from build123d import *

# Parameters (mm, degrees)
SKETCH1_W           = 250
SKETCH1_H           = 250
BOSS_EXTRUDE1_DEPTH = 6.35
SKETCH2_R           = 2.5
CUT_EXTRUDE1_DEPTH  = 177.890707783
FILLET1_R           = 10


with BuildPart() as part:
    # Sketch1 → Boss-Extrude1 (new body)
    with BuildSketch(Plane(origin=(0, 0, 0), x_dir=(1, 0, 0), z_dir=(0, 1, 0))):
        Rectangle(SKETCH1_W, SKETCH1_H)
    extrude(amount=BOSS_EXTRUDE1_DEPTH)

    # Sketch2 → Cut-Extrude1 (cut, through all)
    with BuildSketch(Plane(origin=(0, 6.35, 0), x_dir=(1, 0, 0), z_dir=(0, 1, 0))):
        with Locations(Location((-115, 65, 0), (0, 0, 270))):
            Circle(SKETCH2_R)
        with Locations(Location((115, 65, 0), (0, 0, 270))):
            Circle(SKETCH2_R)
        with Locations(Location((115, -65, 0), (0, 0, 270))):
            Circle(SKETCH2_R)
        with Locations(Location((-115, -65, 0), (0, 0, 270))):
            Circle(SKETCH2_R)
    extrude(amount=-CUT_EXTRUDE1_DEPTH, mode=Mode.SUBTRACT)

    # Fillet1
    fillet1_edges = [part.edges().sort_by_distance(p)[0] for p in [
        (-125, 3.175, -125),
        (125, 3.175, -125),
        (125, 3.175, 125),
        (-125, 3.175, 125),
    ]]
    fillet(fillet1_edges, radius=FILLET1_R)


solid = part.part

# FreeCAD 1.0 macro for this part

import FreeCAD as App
import Part
import Sketcher

V = App.Vector


def edges_at(feature, points):
    """Names of the edges that pass closest to the given points."""
    edges = feature.Shape.Edges
    near = lambda p: min(range(len(edges)), key=lambda i: edges[i].distToShape(Part.Vertex(*p))[0])
    return sorted({f"Edge{near(p) + 1}" for p in points})

doc = App.newDocument("Part")
body = doc.addObject("PartDesign::Body", "Body")

# Sketch on XZ plane
sketch1 = body.newObject("Sketcher::SketchObject", "Sketch")
sketch1.AttachmentSupport = (doc.getObject("XZ_Plane"), [""])
sketch1.MapMode = "FlatFace"
sketch1.addGeometry([
    Part.LineSegment(V(-125, -125, 0), V(-125, 125, 0)),
    Part.LineSegment(V(-125, 125, 0), V(125, 125, 0)),
    Part.LineSegment(V(125, 125, 0), V(125, -125, 0)),
    Part.LineSegment(V(125, -125, 0), V(-125, -125, 0)),
], False)
sketch1.addConstraint([
    Sketcher.Constraint("Coincident", 0, 2, 1, 1),
    Sketcher.Constraint("Coincident", 1, 2, 2, 1),
    Sketcher.Constraint("Coincident", 2, 2, 3, 1),
    Sketcher.Constraint("Coincident", 3, 2, 0, 1),
    Sketcher.Constraint("Vertical", 0),
    Sketcher.Constraint("Horizontal", 1),
    Sketcher.Constraint("Vertical", 2),
    Sketcher.Constraint("Horizontal", 3),
    Sketcher.Constraint("Symmetric", 0, 2, 2, 2, -1, 1),
    Sketcher.Constraint("Equal", 3, 0),
    Sketcher.Constraint("DistanceX", 1, 1, 1, 2, 250.0),
])
pad1 = body.newObject("PartDesign::Pad", "Pad")
pad1.Profile = sketch1
pad1.Length = 6.35
pad1.Reversed = True

# Sketch on XZ plane
sketch2 = body.newObject("Sketcher::SketchObject", "Sketch001")
sketch2.AttachmentSupport = (doc.getObject("XZ_Plane"), [""])
sketch2.MapMode = "FlatFace"
sketch2.AttachmentOffset = App.Placement(V(0, 0, -6.35), App.Rotation())
sketch2.addGeometry([
    Part.Circle(V(-115, -65, 0), V(0, 0, 1), 2.5),
    Part.Circle(V(115, -65, 0), V(0, 0, 1), 2.5),
    Part.Circle(V(115, 65, 0), V(0, 0, 1), 2.5),
    Part.Circle(V(-115, 65, 0), V(0, 0, 1), 2.5),
], False)
sketch2.addConstraint([
    Sketcher.Constraint("Equal", 0, 1),
    Sketcher.Constraint("Equal", 1, 2),
    Sketcher.Constraint("Equal", 2, 3),
    Sketcher.Constraint("Symmetric", 0, 3, 2, 3, -1, 1),
    Sketcher.Constraint("Symmetric", 1, 3, 3, 3, -1, 1),
    Sketcher.Constraint("Symmetric", 0, 3, 1, 3, -2),
    Sketcher.Constraint("Diameter", 0, 5.0),
    Sketcher.Constraint("DistanceX", 0, 3, -1, 1, 115.0),
    Sketcher.Constraint("DistanceY", 0, 3, -1, 1, 65.0),
])
pocket1 = body.newObject("PartDesign::Pocket", "Pocket")
pocket1.Profile = sketch2
pocket1.Type = "ThroughAll"
pocket1.Reversed = True
doc.recompute()

fillet = body.newObject("PartDesign::Fillet", "Fillet")
fillet.Base = (pocket1, edges_at(pocket1, [
    (-125, 3.175, -125),
    (125, 3.175, -125),
    (125, 3.175, 125),
    (-125, 3.175, 125),
]))
fillet.Radius = 10

doc.recompute()
